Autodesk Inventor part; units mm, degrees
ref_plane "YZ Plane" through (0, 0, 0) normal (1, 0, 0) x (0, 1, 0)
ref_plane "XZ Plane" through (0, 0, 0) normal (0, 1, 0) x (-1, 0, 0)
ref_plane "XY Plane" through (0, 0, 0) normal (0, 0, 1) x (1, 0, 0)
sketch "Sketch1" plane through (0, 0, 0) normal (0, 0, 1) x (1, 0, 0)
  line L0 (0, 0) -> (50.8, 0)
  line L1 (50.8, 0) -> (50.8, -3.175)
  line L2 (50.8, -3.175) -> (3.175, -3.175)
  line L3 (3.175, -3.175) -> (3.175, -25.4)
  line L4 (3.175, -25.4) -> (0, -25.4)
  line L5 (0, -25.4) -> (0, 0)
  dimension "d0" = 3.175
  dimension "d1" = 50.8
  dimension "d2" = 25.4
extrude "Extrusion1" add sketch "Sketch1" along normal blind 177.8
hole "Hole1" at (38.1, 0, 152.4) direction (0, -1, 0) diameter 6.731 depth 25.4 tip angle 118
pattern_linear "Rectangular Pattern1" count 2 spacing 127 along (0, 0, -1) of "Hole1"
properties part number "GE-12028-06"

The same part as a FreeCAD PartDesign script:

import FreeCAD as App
import Part
import Sketcher
from FreeCAD import Vector
Q = App.Units.Quantity

doc = App.newDocument("Part")
body = doc.addObject("PartDesign::Body", "Body")

sketch1 = doc.addObject("Sketcher::SketchObject", "Sketch")
body.addObject(sketch1)
sketch1.AttachmentSupport = (doc.XY_Plane, [""])
sketch1.MapMode = "FlatFace"
sketch1.addGeometry([
    Part.LineSegment(Vector(50.8, 0, 0), Vector(0, 0, 0)),
    Part.LineSegment(Vector(0, 0, 0), Vector(0, -25.4, 0)),
    Part.LineSegment(Vector(0, -25.4, 0), Vector(3.175, -25.4, 0)),
    Part.LineSegment(Vector(3.175, -25.4, 0), Vector(3.175, -3.175, 0)),
    Part.LineSegment(Vector(3.175, -3.175, 0), Vector(50.8, -3.175, 0)),
    Part.LineSegment(Vector(50.8, -3.175, 0), Vector(50.8, 0, 0)),
], False)
sketch1.addConstraint([
    Sketcher.Constraint("Coincident", 0, 2, 1, 1),
    Sketcher.Constraint("Coincident", 1, 2, 2, 1),
    Sketcher.Constraint("Coincident", 2, 2, 3, 1),
    Sketcher.Constraint("Coincident", 3, 2, 4, 1),
    Sketcher.Constraint("Coincident", 4, 2, 5, 1),
    Sketcher.Constraint("Coincident", 5, 2, 0, 1),
    Sketcher.Constraint("Horizontal", 0),
    Sketcher.Constraint("Vertical", 1),
    Sketcher.Constraint("Horizontal", 2),
    Sketcher.Constraint("Vertical", 3),
    Sketcher.Constraint("Horizontal", 4),
    Sketcher.Constraint("Vertical", 5),
    Sketcher.Constraint("Coincident", 0, 2, -1, 1),
    Sketcher.Constraint("Equal", 2, 5),
    Sketcher.Constraint("DistanceX", 0, 2, 0, 1, Q("2 in")),
    Sketcher.Constraint("DistanceY", 1, 2, 1, 1, Q("1 in")),
    Sketcher.Constraint("DistanceX", 2, 1, 2, 2, Q("0.125 in")),
])
pad1 = doc.addObject("PartDesign::Pad", "Pad")
body.addObject(pad1)
pad1.Profile = sketch1
pad1.Length = Q("7 in")

sketch2 = doc.addObject("Sketcher::SketchObject", "Sketch001")
body.addObject(sketch2)
sketch2.AttachmentSupport = (doc.XZ_Plane, [""])
sketch2.MapMode = "FlatFace"
sketch2.addGeometry(Part.Circle(Vector(38.1, 152.4, 0), Vector(0, 0, 1), 3.3655), False)
sketch2.addConstraint([
    Sketcher.Constraint("Diameter", 0, Q("0.265 in")),
    Sketcher.Constraint("DistanceY", -1, 1, 0, 3, Q("6 in")),
    Sketcher.Constraint("DistanceX", -1, 1, 0, 3, Q("1.5 in")),
])
doc.recompute()
hole = doc.addObject("PartDesign::Hole", "Hole")
body.addObject(hole)
hole.Profile = sketch2
hole.ThreadType = "None"
hole.Diameter = Q("0.265 in")
hole.DepthType = "Dimension"
hole.Depth = Q("1 in")
hole.DrillPoint = "Angled"
hole.DrillPointAngle = 118
hole.Reversed = True
doc.recompute()

linearpattern = doc.addObject("PartDesign::LinearPattern", "LinearPattern")
body.addObject(linearpattern)
linearpattern.Originals = [hole]
linearpattern.Direction = (doc.Z_Axis, [""])
linearpattern.Mode = "offset"
linearpattern.Offset = Q("5 in")
linearpattern.Occurrences = 2
linearpattern.Reversed = True
body.Tip = linearpattern

doc.recompute()
